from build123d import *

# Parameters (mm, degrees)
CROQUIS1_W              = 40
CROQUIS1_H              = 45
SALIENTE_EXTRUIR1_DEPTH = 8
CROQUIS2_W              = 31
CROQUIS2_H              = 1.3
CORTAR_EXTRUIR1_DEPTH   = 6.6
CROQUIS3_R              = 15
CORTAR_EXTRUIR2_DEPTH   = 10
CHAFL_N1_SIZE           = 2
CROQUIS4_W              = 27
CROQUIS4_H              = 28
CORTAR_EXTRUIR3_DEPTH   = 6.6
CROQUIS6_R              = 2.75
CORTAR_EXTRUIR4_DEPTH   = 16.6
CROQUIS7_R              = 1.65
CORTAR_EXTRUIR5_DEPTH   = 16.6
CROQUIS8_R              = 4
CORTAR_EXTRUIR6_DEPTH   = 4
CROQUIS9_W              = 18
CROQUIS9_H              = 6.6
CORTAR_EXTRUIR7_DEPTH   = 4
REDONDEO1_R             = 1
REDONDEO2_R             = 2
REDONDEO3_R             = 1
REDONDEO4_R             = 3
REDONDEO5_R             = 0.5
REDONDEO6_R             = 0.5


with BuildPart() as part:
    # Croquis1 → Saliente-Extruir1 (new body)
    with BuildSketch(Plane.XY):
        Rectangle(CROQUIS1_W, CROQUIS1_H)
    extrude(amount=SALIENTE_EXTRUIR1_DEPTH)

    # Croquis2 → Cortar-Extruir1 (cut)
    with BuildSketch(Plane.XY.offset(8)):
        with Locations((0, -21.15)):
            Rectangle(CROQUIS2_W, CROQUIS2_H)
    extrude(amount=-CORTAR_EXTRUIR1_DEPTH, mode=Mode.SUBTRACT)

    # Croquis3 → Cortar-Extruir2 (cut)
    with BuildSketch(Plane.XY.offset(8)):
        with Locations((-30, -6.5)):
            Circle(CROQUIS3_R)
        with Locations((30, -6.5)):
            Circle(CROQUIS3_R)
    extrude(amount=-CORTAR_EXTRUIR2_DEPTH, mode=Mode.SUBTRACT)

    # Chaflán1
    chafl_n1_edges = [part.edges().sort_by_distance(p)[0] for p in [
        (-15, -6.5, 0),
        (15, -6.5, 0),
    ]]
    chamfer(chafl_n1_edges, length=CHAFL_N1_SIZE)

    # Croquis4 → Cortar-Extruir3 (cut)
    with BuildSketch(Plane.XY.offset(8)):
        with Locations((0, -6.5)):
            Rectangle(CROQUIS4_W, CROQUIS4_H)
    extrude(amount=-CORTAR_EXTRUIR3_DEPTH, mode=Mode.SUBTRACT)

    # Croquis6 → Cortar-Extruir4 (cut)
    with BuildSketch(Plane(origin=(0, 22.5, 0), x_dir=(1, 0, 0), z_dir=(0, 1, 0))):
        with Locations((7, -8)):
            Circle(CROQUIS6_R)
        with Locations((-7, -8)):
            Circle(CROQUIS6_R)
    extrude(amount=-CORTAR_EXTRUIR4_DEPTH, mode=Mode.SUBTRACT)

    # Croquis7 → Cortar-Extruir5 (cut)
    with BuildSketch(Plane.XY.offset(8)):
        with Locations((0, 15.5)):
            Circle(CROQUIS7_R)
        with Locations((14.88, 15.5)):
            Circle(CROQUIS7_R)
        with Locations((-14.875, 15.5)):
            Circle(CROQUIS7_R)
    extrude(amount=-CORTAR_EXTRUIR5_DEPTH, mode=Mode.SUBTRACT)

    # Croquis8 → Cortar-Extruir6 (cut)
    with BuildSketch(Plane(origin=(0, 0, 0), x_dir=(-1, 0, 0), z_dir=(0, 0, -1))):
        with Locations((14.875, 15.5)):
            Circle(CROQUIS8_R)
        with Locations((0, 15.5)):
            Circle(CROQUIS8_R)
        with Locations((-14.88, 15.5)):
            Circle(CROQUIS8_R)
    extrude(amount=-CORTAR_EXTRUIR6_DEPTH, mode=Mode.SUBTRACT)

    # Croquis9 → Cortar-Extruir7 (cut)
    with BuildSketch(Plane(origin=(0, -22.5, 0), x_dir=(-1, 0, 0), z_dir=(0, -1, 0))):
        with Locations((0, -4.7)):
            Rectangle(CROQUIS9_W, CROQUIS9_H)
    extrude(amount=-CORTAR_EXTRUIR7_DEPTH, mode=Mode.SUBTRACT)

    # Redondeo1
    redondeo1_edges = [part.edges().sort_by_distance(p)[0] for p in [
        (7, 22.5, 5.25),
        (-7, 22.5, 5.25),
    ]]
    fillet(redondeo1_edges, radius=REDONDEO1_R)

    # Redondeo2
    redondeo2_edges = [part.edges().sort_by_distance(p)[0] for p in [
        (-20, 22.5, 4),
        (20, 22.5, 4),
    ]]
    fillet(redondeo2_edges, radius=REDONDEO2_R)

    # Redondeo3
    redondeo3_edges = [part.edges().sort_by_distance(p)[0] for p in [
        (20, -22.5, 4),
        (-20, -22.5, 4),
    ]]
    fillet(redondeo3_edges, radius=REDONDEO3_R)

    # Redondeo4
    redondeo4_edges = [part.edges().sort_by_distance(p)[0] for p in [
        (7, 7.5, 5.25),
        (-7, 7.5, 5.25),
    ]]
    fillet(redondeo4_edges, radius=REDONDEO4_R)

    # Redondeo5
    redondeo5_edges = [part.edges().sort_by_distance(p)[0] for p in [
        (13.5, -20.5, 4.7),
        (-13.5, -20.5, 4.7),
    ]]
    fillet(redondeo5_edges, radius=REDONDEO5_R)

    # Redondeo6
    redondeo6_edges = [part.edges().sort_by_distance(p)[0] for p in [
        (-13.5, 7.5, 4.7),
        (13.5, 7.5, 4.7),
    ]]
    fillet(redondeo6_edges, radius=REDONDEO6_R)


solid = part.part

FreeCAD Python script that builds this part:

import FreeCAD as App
import Part
import Sketcher
from FreeCAD import Vector


def edges_at(feature, points):
    """Names of the edges that pass closest to the given points."""
    edges = feature.Shape.Edges
    near = lambda p: min(range(len(edges)), key=lambda i: edges[i].distToShape(Part.Vertex(*p))[0])
    return sorted({f"Edge{near(p) + 1}" for p in points})

doc = App.newDocument("Part")
body = doc.addObject("PartDesign::Body", "Body")

# Sketch on XY plane
sketch1 = body.newObject("Sketcher::SketchObject", "Sketch")
sketch1.AttachmentSupport = (doc.getObject("XY_Plane"), [""])
sketch1.MapMode = "FlatFace"
sketch1.addGeometry([
    Part.LineSegment(Vector(-20, 22, 0), Vector(-20, -22, 0)),
    Part.LineSegment(Vector(-20, -22, 0), Vector(20, -22, 0)),
    Part.LineSegment(Vector(20, -22, 0), Vector(20, 22, 0)),
    Part.LineSegment(Vector(20, 22, 0), Vector(-20, 22, 0)),
], False)
sketch1.addConstraint([
    Sketcher.Constraint("Coincident", 0, 2, 1, 1),
    Sketcher.Constraint("Coincident", 1, 2, 2, 1),
    Sketcher.Constraint("Coincident", 2, 2, 3, 1),
    Sketcher.Constraint("Coincident", 3, 2, 0, 1),
    Sketcher.Constraint("Vertical", 0),
    Sketcher.Constraint("Horizontal", 1),
    Sketcher.Constraint("Vertical", 2),
    Sketcher.Constraint("Horizontal", 3),
    Sketcher.Constraint("Symmetric", 0, 2, 2, 2, -1, 1),
    Sketcher.Constraint("DistanceX", 1, 1, 1, 2, 40.0),
    Sketcher.Constraint("DistanceY", 0, 2, 0, 1, 45.0),
])
pad1 = body.newObject("PartDesign::Pad", "Pad")
pad1.Profile = sketch1
pad1.Length = 8

# Sketch on XY plane
sketch2 = body.newObject("Sketcher::SketchObject", "Sketch001")
sketch2.AttachmentSupport = (doc.getObject("XY_Plane"), [""])
sketch2.MapMode = "FlatFace"
sketch2.AttachmentOffset = App.Placement(Vector(0, 0, 8), App.Rotation())
sketch2.addGeometry([
    Part.LineSegment(Vector(-15.5, -20.5, 0), Vector(-15.5, -21.8, 0)),
    Part.LineSegment(Vector(-15.5, -21.8, 0), Vector(15.5, -21.8, 0)),
    Part.LineSegment(Vector(15.5, -21.8, 0), Vector(15.5, -20.5, 0)),
    Part.LineSegment(Vector(15.5, -20.5, 0), Vector(-15.5, -20.5, 0)),
], False)
sketch2.addConstraint([
    Sketcher.Constraint("Coincident", 0, 2, 1, 1),
    Sketcher.Constraint("Coincident", 1, 2, 2, 1),
    Sketcher.Constraint("Coincident", 2, 2, 3, 1),
    Sketcher.Constraint("Coincident", 3, 2, 0, 1),
    Sketcher.Constraint("Vertical", 0),
    Sketcher.Constraint("Horizontal", 1),
    Sketcher.Constraint("Vertical", 2),
    Sketcher.Constraint("Horizontal", 3),
    Sketcher.Constraint("DistanceX", 1, 1, 1, 2, 31.0),
    Sketcher.Constraint("DistanceY", 0, 2, 0, 1, 1.3),
    Sketcher.Constraint("DistanceX", 0, 2, -1, 1, 15.5),
    Sketcher.Constraint("DistanceY", 0, 2, -1, 1, 21.8),
])
pocket1 = body.newObject("PartDesign::Pocket", "Pocket")
pocket1.Profile = sketch2
pocket1.Length = 6.6

# Sketch on XY plane
sketch3 = body.newObject("Sketcher::SketchObject", "Sketch002")
sketch3.AttachmentSupport = (doc.getObject("XY_Plane"), [""])
sketch3.MapMode = "FlatFace"
sketch3.AttachmentOffset = App.Placement(Vector(0, 0, 8), App.Rotation())
sketch3.addGeometry([
    Part.Circle(Vector(-30, -6, 0), Vector(0, 0, 1), 15),
    Part.Circle(Vector(30, -6, 0), Vector(0, 0, 1), 15),
], False)
sketch3.addConstraint([
    Sketcher.Constraint("Equal", 0, 1),
    Sketcher.Constraint("Symmetric", 0, 3, 1, 3, -2),
    Sketcher.Constraint("Diameter", 0, 30.0),
    Sketcher.Constraint("DistanceX", 0, 3, -1, 1, 30.0),
    Sketcher.Constraint("DistanceY", 0, 3, -1, 1, 6.5),
])
pocket2 = body.newObject("PartDesign::Pocket", "Pocket001")
pocket2.Profile = sketch3
pocket2.Length = 10
doc.recompute()

chamfer = body.newObject("PartDesign::Chamfer", "Chamfer")
chamfer.Base = (pocket2, edges_at(pocket2, [(-15, -6.5, 0), (15, -6.5, 0)]))
chamfer.Size = 2

# Sketch on XY plane
sketch4 = body.newObject("Sketcher::SketchObject", "Sketch003")
sketch4.AttachmentSupport = (doc.getObject("XY_Plane"), [""])
sketch4.MapMode = "FlatFace"
sketch4.AttachmentOffset = App.Placement(Vector(0, 0, 8), App.Rotation())
sketch4.addGeometry([
    Part.LineSegment(Vector(-14, 8, 0), Vector(-14, -20, 0)),
    Part.LineSegment(Vector(-14, -20, 0), Vector(14, -20, 0)),
    Part.LineSegment(Vector(14, -20, 0), Vector(14, 8, 0)),
    Part.LineSegment(Vector(14, 8, 0), Vector(-14, 8, 0)),
], False)
sketch4.addConstraint([
    Sketcher.Constraint("Coincident", 0, 2, 1, 1),
    Sketcher.Constraint("Coincident", 1, 2, 2, 1),
    Sketcher.Constraint("Coincident", 2, 2, 3, 1),
    Sketcher.Constraint("Coincident", 3, 2, 0, 1),
    Sketcher.Constraint("Vertical", 0),
    Sketcher.Constraint("Horizontal", 1),
    Sketcher.Constraint("Vertical", 2),
    Sketcher.Constraint("Horizontal", 3),
    Sketcher.Constraint("DistanceX", 1, 1, 1, 2, 27.0),
    Sketcher.Constraint("DistanceY", 0, 2, 0, 1, 28.0),
    Sketcher.Constraint("DistanceX", 0, 2, -1, 1, 13.5),
    Sketcher.Constraint("DistanceY", 0, 2, -1, 1, 20.5),
])
pocket3 = body.newObject("PartDesign::Pocket", "Pocket002")
pocket3.Profile = sketch4
pocket3.Length = 6.6

# Sketch on XZ plane
sketch5 = body.newObject("Sketcher::SketchObject", "Sketch004")
sketch5.AttachmentSupport = (doc.getObject("XZ_Plane"), [""])
sketch5.MapMode = "FlatFace"
sketch5.AttachmentOffset = App.Placement(Vector(0, 0, -22.5), App.Rotation())
sketch5.addGeometry([
    Part.Circle(Vector(7, 8, 0), Vector(0, 0, 1), 2.8),
    Part.Circle(Vector(-7, 8, 0), Vector(0, 0, 1), 2.8),
], False)
sketch5.addConstraint([
    Sketcher.Constraint("Equal", 0, 1),
    Sketcher.Constraint("Symmetric", 0, 3, 1, 3, -2),
    Sketcher.Constraint("Diameter", 0, 5.5),
    Sketcher.Constraint("DistanceX", -1, 1, 0, 3, 7.0),
    Sketcher.Constraint("DistanceY", -1, 1, 0, 3, 8.0),
])
pocket4 = body.newObject("PartDesign::Pocket", "Pocket003")
pocket4.Profile = sketch5
pocket4.Length = 16.6
pocket4.Reversed = True

# Sketch on XY plane
sketch6 = body.newObject("Sketcher::SketchObject", "Sketch005")
sketch6.AttachmentSupport = (doc.getObject("XY_Plane"), [""])
sketch6.MapMode = "FlatFace"
sketch6.AttachmentOffset = App.Placement(Vector(0, 0, 8), App.Rotation())
sketch6.addGeometry([
    Part.Circle(Vector(0, 15.5, 0), Vector(0, 0, 1), 1.6),
    Part.Circle(Vector(14.9, 15.5, 0), Vector(0, 0, 1), 1.6),
    Part.Circle(Vector(-14.9, 15.5, 0), Vector(0, 0, 1), 1.6),
], False)
sketch6.addConstraint([
    Sketcher.Constraint("Equal", 0, 1),
    Sketcher.Constraint("Equal", 1, 2),
    Sketcher.Constraint("PointOnObject", 0, 3, -2),
    Sketcher.Constraint("Horizontal", 0, 3, 1, 3),
    Sketcher.Constraint("Horizontal", 1, 3, 2, 3),
    Sketcher.Constraint("Diameter", 0, 3.3),
    Sketcher.Constraint("DistanceY", -1, 1, 0, 3, 15.5),
    Sketcher.Constraint("DistanceX", -1, 1, 1, 3, 14.88),
    Sketcher.Constraint("DistanceX", 2, 3, -1, 1, 14.875),
])
pocket5 = body.newObject("PartDesign::Pocket", "Pocket004")
pocket5.Profile = sketch6
pocket5.Length = 16.6

# Sketch on XY plane
sketch7 = body.newObject("Sketcher::SketchObject", "Sketch006")
sketch7.AttachmentSupport = (doc.getObject("XY_Plane"), [""])
sketch7.MapMode = "FlatFace"
sketch7.addGeometry([
    Part.Circle(Vector(-14.9, 15.5, 0), Vector(0, 0, 1), 4),
    Part.Circle(Vector(0, 15.5, 0), Vector(0, 0, 1), 4),
    Part.Circle(Vector(14.9, 15.5, 0), Vector(0, 0, 1), 4),
], False)
sketch7.addConstraint([
    Sketcher.Constraint("Equal", 0, 1),
    Sketcher.Constraint("Equal", 1, 2),
    Sketcher.Constraint("PointOnObject", 1, 3, -2),
    Sketcher.Constraint("Horizontal", 0, 3, 1, 3),
    Sketcher.Constraint("Horizontal", 1, 3, 2, 3),
    Sketcher.Constraint("Diameter", 0, 8.0),
    Sketcher.Constraint("DistanceY", -1, 1, 0, 3, 15.5),
    Sketcher.Constraint("DistanceX", -1, 1, 2, 3, 14.88),
    Sketcher.Constraint("DistanceX", 0, 3, -1, 1, 14.875),
])
pocket6 = body.newObject("PartDesign::Pocket", "Pocket005")
pocket6.Profile = sketch7
pocket6.Length = 4
pocket6.Reversed = True

# Sketch on XZ plane
sketch8 = body.newObject("Sketcher::SketchObject", "Sketch007")
sketch8.AttachmentSupport = (doc.getObject("XZ_Plane"), [""])
sketch8.MapMode = "FlatFace"
sketch8.AttachmentOffset = App.Placement(Vector(0, 0, 22.5), App.Rotation())
sketch8.addGeometry([
    Part.LineSegment(Vector(9, 1, 0), Vector(9, 8, 0)),
    Part.LineSegment(Vector(9, 8, 0), Vector(-9, 8, 0)),
    Part.LineSegment(Vector(-9, 8, 0), Vector(-9, 1, 0)),
    Part.LineSegment(Vector(-9, 1, 0), Vector(9, 1, 0)),
], False)
sketch8.addConstraint([
    Sketcher.Constraint("Coincident", 0, 2, 1, 1),
    Sketcher.Constraint("Coincident", 1, 2, 2, 1),
    Sketcher.Constraint("Coincident", 2, 2, 3, 1),
    Sketcher.Constraint("Coincident", 3, 2, 0, 1),
    Sketcher.Constraint("Vertical", 0),
    Sketcher.Constraint("Horizontal", 1),
    Sketcher.Constraint("Vertical", 2),
    Sketcher.Constraint("Horizontal", 3),
    Sketcher.Constraint("DistanceX", 1, 2, 1, 1, 18.0),
    Sketcher.Constraint("DistanceY", 0, 1, 0, 2, 6.6),
    Sketcher.Constraint("DistanceX", -1, 1, 0, 2, 9.0),
    Sketcher.Constraint("DistanceY", -1, 1, 0, 2, 8.0),
])
pocket7 = body.newObject("PartDesign::Pocket", "Pocket006")
pocket7.Profile = sketch8
pocket7.Length = 4
doc.recompute()

fillet = body.newObject("PartDesign::Fillet", "Fillet")
fillet.Base = (pocket7, edges_at(pocket7, [(7, 22.5, 5.25), (-7, 22.5, 5.25)]))
fillet.Radius = 1
doc.recompute()

fillet2 = body.newObject("PartDesign::Fillet", "Fillet001")
fillet2.Base = (fillet, edges_at(fillet, [(-20, 22.5, 4), (20, 22.5, 4)]))
fillet2.Radius = 2
doc.recompute()

fillet3 = body.newObject("PartDesign::Fillet", "Fillet002")
fillet3.Base = (fillet2, edges_at(fillet2, [(20, -22.5, 4), (-20, -22.5, 4)]))
fillet3.Radius = 1
doc.recompute()

fillet4 = body.newObject("PartDesign::Fillet", "Fillet003")
fillet4.Base = (fillet3, edges_at(fillet3, [(7, 7.5, 5.25), (-7, 7.5, 5.25)]))
fillet4.Radius = 3
doc.recompute()

fillet5 = body.newObject("PartDesign::Fillet", "Fillet004")
fillet5.Base = (fillet4, edges_at(fillet4, [(13.5, -20.5, 4.7), (-13.5, -20.5, 4.7)]))
fillet5.Radius = 0.5
doc.recompute()

fillet6 = body.newObject("PartDesign::Fillet", "Fillet005")
fillet6.Base = (fillet5, edges_at(fillet5, [(-13.5, 7.5, 4.7), (13.5, 7.5, 4.7)]))
fillet6.Radius = 0.5

doc.recompute()
